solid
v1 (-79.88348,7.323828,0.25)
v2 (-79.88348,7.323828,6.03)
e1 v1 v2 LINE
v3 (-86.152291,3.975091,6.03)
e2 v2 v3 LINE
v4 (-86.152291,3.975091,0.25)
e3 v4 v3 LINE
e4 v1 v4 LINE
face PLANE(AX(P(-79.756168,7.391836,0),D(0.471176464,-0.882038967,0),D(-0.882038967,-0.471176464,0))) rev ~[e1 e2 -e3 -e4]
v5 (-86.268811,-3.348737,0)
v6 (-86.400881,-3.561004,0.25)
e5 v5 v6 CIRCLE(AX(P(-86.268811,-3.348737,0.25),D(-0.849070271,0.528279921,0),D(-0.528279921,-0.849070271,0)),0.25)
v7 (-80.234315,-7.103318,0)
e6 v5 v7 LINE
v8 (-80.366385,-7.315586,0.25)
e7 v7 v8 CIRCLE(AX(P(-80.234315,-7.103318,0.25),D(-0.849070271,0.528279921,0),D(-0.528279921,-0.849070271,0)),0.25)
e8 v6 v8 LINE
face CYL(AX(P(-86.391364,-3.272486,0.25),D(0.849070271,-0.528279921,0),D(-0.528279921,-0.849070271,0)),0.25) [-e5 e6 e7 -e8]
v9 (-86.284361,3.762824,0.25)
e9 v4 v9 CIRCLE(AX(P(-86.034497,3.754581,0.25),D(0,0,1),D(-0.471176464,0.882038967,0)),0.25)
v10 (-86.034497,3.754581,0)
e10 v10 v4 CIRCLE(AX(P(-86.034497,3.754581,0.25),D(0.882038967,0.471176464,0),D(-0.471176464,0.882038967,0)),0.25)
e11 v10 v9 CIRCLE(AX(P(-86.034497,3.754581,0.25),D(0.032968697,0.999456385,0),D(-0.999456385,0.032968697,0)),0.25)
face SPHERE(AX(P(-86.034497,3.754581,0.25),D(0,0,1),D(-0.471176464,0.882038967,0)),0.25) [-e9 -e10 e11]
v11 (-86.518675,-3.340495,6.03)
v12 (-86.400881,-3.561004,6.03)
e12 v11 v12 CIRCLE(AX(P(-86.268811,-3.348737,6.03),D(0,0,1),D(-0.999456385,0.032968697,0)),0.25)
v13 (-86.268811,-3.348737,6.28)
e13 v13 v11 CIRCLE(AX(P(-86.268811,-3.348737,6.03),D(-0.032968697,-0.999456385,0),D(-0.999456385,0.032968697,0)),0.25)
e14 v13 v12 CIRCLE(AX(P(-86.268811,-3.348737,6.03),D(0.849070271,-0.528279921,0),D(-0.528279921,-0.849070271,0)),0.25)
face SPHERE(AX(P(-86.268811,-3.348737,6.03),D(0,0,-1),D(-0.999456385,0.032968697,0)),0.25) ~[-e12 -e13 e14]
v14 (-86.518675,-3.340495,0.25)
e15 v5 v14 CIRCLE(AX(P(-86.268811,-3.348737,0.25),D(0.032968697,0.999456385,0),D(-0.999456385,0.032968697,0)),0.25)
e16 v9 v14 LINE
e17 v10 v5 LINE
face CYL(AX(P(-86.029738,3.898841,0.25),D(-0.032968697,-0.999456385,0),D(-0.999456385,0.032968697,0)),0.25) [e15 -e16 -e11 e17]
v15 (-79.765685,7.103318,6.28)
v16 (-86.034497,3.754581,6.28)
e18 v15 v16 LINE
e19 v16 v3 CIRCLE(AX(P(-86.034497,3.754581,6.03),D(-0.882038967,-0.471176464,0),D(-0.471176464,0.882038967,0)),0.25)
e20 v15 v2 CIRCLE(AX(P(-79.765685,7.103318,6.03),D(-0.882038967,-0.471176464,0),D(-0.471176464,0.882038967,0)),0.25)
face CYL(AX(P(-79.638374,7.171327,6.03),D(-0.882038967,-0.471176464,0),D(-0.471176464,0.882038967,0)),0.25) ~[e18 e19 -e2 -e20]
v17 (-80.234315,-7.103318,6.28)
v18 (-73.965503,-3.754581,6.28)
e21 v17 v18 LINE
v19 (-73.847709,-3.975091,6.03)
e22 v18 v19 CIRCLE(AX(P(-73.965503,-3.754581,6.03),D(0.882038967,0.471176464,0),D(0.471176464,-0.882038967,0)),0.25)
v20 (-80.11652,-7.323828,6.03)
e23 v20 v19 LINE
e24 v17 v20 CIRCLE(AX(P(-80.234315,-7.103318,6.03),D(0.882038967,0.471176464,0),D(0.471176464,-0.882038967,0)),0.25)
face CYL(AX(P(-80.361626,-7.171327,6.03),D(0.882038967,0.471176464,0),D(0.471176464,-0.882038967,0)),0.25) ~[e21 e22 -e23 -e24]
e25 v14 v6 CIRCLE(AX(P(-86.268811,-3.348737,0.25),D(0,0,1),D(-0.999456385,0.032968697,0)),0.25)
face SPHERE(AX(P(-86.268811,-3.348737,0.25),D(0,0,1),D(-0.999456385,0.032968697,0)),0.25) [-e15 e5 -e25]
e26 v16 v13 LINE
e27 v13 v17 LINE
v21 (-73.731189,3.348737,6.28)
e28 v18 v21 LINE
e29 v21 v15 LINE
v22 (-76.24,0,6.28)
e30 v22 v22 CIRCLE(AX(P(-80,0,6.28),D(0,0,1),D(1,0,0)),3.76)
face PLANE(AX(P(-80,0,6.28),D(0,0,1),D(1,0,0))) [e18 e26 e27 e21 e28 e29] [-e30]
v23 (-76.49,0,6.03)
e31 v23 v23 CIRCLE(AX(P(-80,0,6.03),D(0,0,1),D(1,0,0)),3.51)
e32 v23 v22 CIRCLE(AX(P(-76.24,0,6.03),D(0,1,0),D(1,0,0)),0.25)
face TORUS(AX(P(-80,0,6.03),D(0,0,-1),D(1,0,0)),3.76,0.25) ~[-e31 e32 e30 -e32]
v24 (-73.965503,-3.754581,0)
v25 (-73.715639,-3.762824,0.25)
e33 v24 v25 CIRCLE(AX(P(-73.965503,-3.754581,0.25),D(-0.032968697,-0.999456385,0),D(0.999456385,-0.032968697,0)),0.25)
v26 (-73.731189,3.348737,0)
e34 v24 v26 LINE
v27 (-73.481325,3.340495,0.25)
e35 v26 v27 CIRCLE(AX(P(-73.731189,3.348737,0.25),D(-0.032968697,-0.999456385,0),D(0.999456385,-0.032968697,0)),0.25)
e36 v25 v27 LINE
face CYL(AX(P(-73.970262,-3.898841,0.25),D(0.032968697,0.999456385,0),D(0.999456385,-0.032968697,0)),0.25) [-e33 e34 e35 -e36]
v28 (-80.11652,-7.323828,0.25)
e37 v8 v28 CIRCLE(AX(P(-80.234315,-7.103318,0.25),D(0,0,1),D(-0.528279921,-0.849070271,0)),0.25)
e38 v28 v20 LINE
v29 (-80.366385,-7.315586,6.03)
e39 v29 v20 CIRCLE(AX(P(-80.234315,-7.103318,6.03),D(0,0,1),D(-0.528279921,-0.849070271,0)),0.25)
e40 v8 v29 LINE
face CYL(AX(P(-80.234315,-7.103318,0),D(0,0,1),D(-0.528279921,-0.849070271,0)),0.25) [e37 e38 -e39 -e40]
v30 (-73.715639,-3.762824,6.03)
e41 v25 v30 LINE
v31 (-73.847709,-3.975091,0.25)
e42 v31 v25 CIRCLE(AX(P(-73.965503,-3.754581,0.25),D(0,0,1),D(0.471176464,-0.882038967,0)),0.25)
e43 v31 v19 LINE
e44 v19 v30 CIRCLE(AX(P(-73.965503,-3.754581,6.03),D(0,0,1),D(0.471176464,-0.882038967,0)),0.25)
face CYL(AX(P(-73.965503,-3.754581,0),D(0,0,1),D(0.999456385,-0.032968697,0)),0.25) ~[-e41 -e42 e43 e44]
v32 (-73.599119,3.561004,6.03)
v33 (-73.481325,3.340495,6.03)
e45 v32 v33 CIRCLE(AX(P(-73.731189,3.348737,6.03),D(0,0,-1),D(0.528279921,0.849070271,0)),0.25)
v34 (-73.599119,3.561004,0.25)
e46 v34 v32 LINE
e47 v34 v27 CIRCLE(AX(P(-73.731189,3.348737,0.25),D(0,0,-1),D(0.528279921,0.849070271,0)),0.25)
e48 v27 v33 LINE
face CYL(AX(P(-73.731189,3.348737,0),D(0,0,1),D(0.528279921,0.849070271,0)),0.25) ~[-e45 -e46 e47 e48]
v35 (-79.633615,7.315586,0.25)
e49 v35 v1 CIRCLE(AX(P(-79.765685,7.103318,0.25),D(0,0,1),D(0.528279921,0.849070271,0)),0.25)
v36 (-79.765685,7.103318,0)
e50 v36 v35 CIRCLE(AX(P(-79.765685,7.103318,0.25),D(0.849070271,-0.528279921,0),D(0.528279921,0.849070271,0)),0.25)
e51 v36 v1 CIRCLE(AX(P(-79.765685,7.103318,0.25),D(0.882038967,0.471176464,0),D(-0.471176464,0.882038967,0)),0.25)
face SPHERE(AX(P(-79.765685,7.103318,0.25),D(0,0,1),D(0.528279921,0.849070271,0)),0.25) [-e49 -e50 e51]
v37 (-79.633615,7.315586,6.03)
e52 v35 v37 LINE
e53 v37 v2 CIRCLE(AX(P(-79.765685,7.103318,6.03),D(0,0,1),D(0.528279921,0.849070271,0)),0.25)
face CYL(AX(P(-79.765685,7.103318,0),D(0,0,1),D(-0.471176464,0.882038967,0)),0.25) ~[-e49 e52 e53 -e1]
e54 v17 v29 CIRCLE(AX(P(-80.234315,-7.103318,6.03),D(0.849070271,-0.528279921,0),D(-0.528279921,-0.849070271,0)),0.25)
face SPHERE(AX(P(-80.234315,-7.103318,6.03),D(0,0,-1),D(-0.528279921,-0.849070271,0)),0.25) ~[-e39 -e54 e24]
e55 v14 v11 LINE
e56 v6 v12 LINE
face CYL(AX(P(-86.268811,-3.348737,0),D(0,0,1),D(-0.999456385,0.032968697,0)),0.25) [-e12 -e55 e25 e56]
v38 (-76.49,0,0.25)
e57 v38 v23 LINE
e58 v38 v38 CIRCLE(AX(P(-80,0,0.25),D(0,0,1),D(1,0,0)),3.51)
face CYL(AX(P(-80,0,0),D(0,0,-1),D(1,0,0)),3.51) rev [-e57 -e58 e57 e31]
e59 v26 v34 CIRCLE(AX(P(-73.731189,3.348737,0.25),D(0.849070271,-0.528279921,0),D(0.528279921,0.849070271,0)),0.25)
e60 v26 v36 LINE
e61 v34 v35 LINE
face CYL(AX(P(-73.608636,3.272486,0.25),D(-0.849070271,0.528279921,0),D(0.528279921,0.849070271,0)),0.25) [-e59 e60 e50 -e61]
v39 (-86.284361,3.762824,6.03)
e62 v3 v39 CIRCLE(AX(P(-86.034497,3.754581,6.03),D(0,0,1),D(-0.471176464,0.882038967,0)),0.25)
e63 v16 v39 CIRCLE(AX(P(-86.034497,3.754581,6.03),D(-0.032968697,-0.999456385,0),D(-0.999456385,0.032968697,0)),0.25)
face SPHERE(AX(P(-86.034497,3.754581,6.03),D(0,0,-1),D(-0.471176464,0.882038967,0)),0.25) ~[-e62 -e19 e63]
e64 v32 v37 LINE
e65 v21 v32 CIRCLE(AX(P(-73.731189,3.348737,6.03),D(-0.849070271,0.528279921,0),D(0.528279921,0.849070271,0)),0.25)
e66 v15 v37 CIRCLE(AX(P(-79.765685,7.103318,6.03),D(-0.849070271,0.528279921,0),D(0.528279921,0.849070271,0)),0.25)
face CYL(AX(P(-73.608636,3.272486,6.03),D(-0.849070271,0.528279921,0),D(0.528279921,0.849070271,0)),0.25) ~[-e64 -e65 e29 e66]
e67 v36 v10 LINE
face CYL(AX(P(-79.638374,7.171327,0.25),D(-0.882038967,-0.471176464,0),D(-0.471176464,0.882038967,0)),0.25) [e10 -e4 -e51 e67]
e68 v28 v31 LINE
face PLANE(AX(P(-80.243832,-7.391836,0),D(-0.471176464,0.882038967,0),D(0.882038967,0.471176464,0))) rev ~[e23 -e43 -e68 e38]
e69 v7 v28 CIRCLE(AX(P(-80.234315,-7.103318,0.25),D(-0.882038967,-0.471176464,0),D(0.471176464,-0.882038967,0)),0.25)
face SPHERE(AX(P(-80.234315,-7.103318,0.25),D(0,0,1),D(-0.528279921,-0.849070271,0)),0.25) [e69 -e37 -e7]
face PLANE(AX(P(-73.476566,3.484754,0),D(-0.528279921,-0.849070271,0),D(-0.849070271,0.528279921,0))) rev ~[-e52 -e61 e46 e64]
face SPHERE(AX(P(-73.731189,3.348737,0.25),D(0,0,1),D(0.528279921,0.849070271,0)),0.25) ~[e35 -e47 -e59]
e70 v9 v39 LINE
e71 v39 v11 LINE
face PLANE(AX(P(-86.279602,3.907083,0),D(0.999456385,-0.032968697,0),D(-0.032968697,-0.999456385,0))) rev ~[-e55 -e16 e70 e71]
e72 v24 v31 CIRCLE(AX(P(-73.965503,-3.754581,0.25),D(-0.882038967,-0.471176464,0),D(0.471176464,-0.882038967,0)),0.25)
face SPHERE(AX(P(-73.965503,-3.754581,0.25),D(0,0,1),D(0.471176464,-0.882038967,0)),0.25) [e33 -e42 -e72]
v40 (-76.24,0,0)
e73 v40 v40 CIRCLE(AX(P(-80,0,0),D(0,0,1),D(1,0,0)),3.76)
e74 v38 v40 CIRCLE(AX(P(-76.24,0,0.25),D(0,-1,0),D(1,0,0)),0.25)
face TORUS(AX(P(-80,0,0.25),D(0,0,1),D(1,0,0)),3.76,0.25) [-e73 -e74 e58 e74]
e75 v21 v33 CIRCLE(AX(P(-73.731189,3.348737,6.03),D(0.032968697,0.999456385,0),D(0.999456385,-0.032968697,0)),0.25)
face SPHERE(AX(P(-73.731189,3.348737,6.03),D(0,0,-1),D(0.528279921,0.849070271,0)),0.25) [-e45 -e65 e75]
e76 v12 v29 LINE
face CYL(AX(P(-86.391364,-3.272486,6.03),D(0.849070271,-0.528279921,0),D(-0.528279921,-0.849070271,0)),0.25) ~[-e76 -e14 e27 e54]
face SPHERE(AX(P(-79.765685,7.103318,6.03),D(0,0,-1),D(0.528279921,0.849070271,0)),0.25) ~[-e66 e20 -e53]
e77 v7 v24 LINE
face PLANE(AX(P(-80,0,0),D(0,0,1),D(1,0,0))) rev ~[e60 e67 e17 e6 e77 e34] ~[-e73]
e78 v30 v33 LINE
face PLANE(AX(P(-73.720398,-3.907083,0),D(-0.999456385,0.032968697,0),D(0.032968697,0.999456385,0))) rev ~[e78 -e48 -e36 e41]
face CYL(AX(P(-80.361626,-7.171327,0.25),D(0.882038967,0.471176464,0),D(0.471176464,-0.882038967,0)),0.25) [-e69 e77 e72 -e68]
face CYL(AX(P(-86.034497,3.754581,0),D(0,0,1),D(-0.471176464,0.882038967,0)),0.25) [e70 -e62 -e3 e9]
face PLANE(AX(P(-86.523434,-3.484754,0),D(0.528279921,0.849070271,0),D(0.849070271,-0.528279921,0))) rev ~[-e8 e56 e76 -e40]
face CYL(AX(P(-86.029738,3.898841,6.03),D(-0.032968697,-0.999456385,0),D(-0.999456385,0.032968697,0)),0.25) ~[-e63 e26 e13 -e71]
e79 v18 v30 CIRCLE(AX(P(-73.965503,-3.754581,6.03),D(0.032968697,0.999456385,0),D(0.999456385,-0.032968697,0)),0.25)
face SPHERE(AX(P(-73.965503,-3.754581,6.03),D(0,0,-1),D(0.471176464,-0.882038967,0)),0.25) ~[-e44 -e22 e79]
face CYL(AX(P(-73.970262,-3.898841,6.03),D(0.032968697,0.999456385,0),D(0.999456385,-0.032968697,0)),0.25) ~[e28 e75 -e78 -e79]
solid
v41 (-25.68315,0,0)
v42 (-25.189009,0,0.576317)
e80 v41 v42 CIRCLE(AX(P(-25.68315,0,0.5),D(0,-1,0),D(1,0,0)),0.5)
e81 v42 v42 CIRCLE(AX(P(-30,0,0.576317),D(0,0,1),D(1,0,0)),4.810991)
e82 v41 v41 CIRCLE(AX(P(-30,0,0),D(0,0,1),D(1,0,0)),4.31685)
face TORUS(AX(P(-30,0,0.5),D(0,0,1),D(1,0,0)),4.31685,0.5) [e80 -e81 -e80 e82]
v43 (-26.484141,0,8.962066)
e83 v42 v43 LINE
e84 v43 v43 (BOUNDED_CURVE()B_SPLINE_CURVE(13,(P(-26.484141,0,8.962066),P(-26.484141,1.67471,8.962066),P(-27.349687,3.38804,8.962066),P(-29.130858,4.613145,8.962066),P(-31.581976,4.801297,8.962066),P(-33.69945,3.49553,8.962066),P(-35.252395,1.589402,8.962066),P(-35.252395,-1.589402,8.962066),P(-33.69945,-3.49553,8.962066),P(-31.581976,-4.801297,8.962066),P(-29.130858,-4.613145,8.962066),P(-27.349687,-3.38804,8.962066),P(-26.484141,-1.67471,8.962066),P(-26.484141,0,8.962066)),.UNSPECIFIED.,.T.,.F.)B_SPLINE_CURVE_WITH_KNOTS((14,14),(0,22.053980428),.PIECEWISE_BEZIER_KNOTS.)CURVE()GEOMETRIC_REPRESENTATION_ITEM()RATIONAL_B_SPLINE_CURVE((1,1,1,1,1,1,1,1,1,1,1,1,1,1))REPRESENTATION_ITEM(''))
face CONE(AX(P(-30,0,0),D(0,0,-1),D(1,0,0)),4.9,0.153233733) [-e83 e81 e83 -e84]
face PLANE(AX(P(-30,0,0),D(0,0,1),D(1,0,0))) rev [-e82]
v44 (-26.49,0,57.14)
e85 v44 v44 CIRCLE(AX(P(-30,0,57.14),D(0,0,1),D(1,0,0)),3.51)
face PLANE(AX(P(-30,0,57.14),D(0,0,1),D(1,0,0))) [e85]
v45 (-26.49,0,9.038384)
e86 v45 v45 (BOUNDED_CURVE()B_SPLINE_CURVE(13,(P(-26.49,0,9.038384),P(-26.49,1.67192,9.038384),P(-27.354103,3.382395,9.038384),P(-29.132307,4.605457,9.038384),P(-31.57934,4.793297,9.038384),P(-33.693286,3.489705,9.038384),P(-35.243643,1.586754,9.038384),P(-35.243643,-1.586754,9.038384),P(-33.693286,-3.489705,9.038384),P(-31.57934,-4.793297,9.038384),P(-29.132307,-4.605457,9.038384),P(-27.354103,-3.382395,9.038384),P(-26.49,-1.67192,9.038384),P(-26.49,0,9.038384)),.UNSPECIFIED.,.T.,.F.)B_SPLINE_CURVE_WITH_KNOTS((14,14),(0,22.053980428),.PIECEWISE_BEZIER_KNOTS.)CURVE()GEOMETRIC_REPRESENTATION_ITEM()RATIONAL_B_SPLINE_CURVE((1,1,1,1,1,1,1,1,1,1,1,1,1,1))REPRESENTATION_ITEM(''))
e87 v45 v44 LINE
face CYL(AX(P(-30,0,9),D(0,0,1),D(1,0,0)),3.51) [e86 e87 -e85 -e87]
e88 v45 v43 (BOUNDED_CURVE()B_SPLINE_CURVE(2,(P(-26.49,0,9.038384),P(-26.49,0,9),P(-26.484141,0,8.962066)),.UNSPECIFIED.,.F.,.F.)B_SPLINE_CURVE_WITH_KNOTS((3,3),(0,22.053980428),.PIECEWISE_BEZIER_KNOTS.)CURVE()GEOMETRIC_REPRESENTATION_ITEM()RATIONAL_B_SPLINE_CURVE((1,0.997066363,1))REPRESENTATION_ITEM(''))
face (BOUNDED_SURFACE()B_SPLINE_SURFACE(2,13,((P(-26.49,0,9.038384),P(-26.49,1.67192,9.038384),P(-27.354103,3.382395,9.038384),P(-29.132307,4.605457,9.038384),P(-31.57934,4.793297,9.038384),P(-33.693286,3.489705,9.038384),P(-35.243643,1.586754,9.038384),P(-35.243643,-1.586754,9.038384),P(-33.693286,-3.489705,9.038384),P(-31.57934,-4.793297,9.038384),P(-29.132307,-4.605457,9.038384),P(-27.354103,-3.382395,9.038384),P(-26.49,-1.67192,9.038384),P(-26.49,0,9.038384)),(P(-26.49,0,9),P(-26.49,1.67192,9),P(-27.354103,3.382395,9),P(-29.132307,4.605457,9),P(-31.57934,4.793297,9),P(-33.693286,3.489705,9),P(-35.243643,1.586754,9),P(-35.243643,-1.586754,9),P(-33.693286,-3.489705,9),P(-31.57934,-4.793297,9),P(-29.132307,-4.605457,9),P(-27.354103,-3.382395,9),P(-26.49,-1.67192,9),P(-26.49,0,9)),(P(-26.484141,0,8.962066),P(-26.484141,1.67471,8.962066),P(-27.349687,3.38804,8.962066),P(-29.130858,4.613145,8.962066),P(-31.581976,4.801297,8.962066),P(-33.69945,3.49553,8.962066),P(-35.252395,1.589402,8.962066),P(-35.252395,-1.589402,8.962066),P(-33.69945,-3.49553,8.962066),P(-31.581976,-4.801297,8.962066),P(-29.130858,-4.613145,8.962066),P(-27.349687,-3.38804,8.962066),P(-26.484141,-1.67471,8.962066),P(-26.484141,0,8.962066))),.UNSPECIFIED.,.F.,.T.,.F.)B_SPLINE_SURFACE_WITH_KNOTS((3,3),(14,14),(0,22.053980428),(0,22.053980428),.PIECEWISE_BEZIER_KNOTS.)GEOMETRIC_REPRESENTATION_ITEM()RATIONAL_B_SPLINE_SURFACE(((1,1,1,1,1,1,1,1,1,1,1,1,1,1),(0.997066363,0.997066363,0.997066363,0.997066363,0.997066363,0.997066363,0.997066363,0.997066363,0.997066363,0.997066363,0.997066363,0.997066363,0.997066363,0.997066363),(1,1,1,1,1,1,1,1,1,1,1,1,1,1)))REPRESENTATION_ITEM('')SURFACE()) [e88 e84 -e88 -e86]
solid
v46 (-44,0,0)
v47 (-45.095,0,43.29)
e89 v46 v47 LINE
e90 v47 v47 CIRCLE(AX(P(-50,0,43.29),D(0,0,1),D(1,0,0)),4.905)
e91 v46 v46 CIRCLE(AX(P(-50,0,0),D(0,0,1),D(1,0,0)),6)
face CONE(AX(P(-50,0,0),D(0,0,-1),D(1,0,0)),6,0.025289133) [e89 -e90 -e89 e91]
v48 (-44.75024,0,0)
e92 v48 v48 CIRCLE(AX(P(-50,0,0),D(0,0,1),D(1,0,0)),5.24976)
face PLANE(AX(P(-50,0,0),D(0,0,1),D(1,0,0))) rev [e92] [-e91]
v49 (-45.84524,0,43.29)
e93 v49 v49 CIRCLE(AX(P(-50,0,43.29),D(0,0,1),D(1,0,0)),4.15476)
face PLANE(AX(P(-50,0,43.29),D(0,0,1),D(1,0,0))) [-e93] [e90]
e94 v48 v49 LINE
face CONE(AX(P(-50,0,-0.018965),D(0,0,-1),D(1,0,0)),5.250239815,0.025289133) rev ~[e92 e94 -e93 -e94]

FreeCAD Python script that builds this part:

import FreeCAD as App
import Part
import Sketcher
from FreeCAD import Vector


def edges_at(feature, points):
    """Names of the edges that pass closest to the given points."""
    edges = feature.Shape.Edges
    near = lambda p: min(range(len(edges)), key=lambda i: edges[i].distToShape(Part.Vertex(*p))[0])
    return sorted({f"Edge{near(p) + 1}" for p in points})


def faces_at(feature, points):
    """Names of the faces that lie closest to the given points."""
    faces = feature.Shape.Faces
    near = lambda p: min(range(len(faces)), key=lambda i: faces[i].distToShape(Part.Vertex(*p))[0])
    return sorted({f"Face{near(p) + 1}" for p in points})

doc = App.newDocument("Part")
params = doc.addObject("Spreadsheet::Sheet", "Params")
for row, (alias, value) in enumerate([
    ("sketch1_width", "4.9 mm"),
    ("sketch1_width2", "3.51 mm"),
    ("sketch1_height", "48.14 mm"),
    ("revolution_angle", "360 deg"),
    ("fillet_radius", "0.5 mm"),
    ("sketch2_width", "6 mm"),
    ("sketch2_height", "43.29 mm"),
    ("revolution2_angle", "360 deg"),
    ("thickness_wall", "0.75 mm"),
    ("sketch3_diameter", "7.02 mm"),
    ("pad1_length", "6.28 mm"),
    ("fillet2_radius", "0.25 mm"),
], start=1):
    params.set(f"A{row}", alias)
    params.set(f"B{row}", "=" + value)
    params.setAlias(f"B{row}", alias)

body = doc.addObject("PartDesign::Body", "Body")

# Sketch on XZ plane
sketch1 = body.newObject("Sketcher::SketchObject", "Sketch")
sketch1.AttachmentSupport = (doc.getObject("XZ_Plane"), [""])
sketch1.MapMode = "FlatFace"
sketch1.addGeometry([
    Part.LineSegment(Vector(-26.49, 9, 0), Vector(-26.49, 57.14, 0)),  # 0
    Part.LineSegment(Vector(-26.49, 57.14, 0), Vector(-30, 57.14, 0)),  # 1
    Part.LineSegment(Vector(-30, 57.14, 0), Vector(-30, 0, 0)),  # 2
    Part.LineSegment(Vector(-30, 0, 0), Vector(-25.1, 0, 0)),  # 3
    Part.LineSegment(Vector(-25.1, 0, 0), Vector(-26.49, 9, 0)),  # 4
], False)
sketch1.addGeometry(Part.LineSegment(Vector(-30, 0, 0), Vector(-30, 57.14, 0)), True)  # axis
sketch1.addConstraint([
    Sketcher.Constraint("Coincident", 0, 2, 1, 1),
    Sketcher.Constraint("Coincident", 1, 2, 2, 1),
    Sketcher.Constraint("Coincident", 2, 2, 3, 1),
    Sketcher.Constraint("Coincident", 3, 2, 4, 1),
    Sketcher.Constraint("Coincident", 4, 2, 0, 1),
    Sketcher.Constraint("Vertical", 0),
    Sketcher.Constraint("Horizontal", 1),
    Sketcher.Constraint("Vertical", 2),
    Sketcher.Constraint("Horizontal", 3),
    Sketcher.Constraint("Vertical", 5),
    Sketcher.Constraint("Coincident", 5, 1, 2, 2),
    Sketcher.Constraint("PointOnObject", 2, 2, -1),
    Sketcher.Constraint("Horizontal", 0, 2, 5, 2),
    Sketcher.Constraint("DistanceX", 3, 1, 3, 2, 4.9),
    Sketcher.Constraint("DistanceX", 1, 2, -1, 1, 30.0),
    Sketcher.Constraint("DistanceY", -1, 1, 4, 2, 9.0),
    Sketcher.Constraint("DistanceX", 1, 2, 1, 1, 3.51),
    Sketcher.Constraint("DistanceY", 0, 1, 0, 2, 48.14),
])
sketch1.setExpression("Constraints[13]", "Params.sketch1_width")
sketch1.setExpression("Constraints[16]", "Params.sketch1_width2")
sketch1.setExpression("Constraints[17]", "Params.sketch1_height")
revolution = body.newObject("PartDesign::Revolution", "Revolution")
revolution.Profile = sketch1
revolution.ReferenceAxis = (sketch1, ["Axis0"])
revolution.setExpression("Angle", "Params.revolution_angle")
doc.recompute()

fillet = body.newObject("PartDesign::Fillet", "Fillet")
fillet.Base = (revolution, edges_at(revolution, [(-34.9, 0, 0), (-33.51, 0, 9)]))
fillet.setExpression("Radius", "Params.fillet_radius")
body2 = doc.addObject("PartDesign::Body", "Body001")

# Sketch on XZ plane
sketch2 = body2.newObject("Sketcher::SketchObject", "Sketch001")
sketch2.AttachmentSupport = (doc.getObject("XZ_Plane001"), [""])
sketch2.MapMode = "FlatFace"
sketch2.addGeometry([
    Part.LineSegment(Vector(-50, 43.29, 0), Vector(-50, 0, 0)),
    Part.LineSegment(Vector(-50, 0, 0), Vector(-44, 0, 0)),
    Part.LineSegment(Vector(-44, 0, 0), Vector(-45.095, 43.29, 0)),
    Part.LineSegment(Vector(-45.095, 43.29, 0), Vector(-50, 43.29, 0)),
], False)
sketch2.addGeometry(Part.LineSegment(Vector(-50, 0, 0), Vector(-50, 43.29, 0)), True)  # axis
sketch2.addConstraint([
    Sketcher.Constraint("Coincident", 0, 2, 1, 1),
    Sketcher.Constraint("Coincident", 1, 2, 2, 1),
    Sketcher.Constraint("Coincident", 2, 2, 3, 1),
    Sketcher.Constraint("Coincident", 3, 2, 0, 1),
    Sketcher.Constraint("Vertical", 0),
    Sketcher.Constraint("Horizontal", 1),
    Sketcher.Constraint("Horizontal", 3),
    Sketcher.Constraint("Vertical", 4),
    Sketcher.Constraint("Coincident", 4, 1, 0, 2),
    Sketcher.Constraint("PointOnObject", 0, 2, -1),
    Sketcher.Constraint("Horizontal", 2, 2, 4, 2),
    Sketcher.Constraint("DistanceX", 1, 1, 1, 2, 6.0),
    Sketcher.Constraint("DistanceX", 0, 2, -1, 1, 50.0),
    Sketcher.Constraint("DistanceY", 0, 2, 0, 1, 43.29),
    Sketcher.Constraint("DistanceX", 3, 2, 3, 1, 4.905),
])
sketch2.setExpression("Constraints[11]", "Params.sketch2_width")
sketch2.setExpression("Constraints[13]", "Params.sketch2_height")
revolution2 = body2.newObject("PartDesign::Revolution", "Revolution001")
revolution2.Profile = sketch2
revolution2.ReferenceAxis = (sketch2, ["Axis0"])
revolution2.setExpression("Angle", "Params.revolution2_angle")
doc.recompute()

thickness = body2.newObject("PartDesign::Thickness", "Thickness")
thickness.Base = (revolution2, faces_at(revolution2, [(-50, 0, 43.29), (-50, 0, 0)]))
thickness.setExpression("Value", "Params.thickness_wall")
thickness.Reversed = True
thickness.Join = "Arc"
body3 = doc.addObject("PartDesign::Body", "Body002")

# Sketch on XY plane
sketch3 = body3.newObject("Sketcher::SketchObject", "Sketch002")
sketch3.AttachmentSupport = (doc.getObject("XY_Plane002"), [""])
sketch3.MapMode = "FlatFace"
sketch3.addGeometry([
    Part.LineSegment(Vector(-79.756168, 7.391836, 0), Vector(-86.279602, 3.907083, 0)),  # 0
    Part.LineSegment(Vector(-86.279602, 3.907083, 0), Vector(-86.523434, -3.484754, 0)),  # 1
    Part.LineSegment(Vector(-86.523434, -3.484754, 0), Vector(-80.243832, -7.391836, 0)),  # 2
    Part.LineSegment(Vector(-80.243832, -7.391836, 0), Vector(-73.720398, -3.907083, 0)),  # 3
    Part.LineSegment(Vector(-73.720398, -3.907083, 0), Vector(-73.476566, 3.484754, 0)),  # 4
    Part.LineSegment(Vector(-73.476566, 3.484754, 0), Vector(-79.756168, 7.391836, 0)),  # 5
    Part.Circle(Vector(-80, 0, 0), Vector(0, 0, 1), 3.51),  # 6
], False)
sketch3.addConstraint([
    Sketcher.Constraint("Coincident", 0, 2, 1, 1),
    Sketcher.Constraint("Coincident", 1, 2, 2, 1),
    Sketcher.Constraint("Coincident", 2, 2, 3, 1),
    Sketcher.Constraint("Coincident", 3, 2, 4, 1),
    Sketcher.Constraint("Coincident", 4, 2, 5, 1),
    Sketcher.Constraint("Coincident", 5, 2, 0, 1),
    Sketcher.Constraint("PointOnObject", 6, 3, -1),
    Sketcher.Constraint("Parallel", 0, 3),
    Sketcher.Constraint("Parallel", 1, 4),
    Sketcher.Constraint("Parallel", 2, 5),
    Sketcher.Constraint("Equal", 0, 1),
    Sketcher.Constraint("Equal", 1, 2),
    Sketcher.Constraint("Equal", 2, 3),
    Sketcher.Constraint("Diameter", 6, 7.02),
    Sketcher.Constraint("DistanceX", 6, 3, -1, 1, 80.0),
    Sketcher.Constraint("DistanceX", 2, 2, -1, 1, 80.243832),
    Sketcher.Constraint("DistanceX", 5, 2, -1, 1, 79.756168),
    Sketcher.Constraint("DistanceX", 1, 2, 0, 2, 0.243832),
    Sketcher.Constraint("DistanceX", 0, 2, 2, 2, 6.03577),
    Sketcher.Constraint("DistanceY", 2, 2, 0, 2, 11.298919),
    Sketcher.Constraint("DistanceY", -1, 1, 0, 2, 3.907083),
])
sketch3.setExpression("Constraints[13]", "Params.sketch3_diameter")
pad1 = body3.newObject("PartDesign::Pad", "Pad")
pad1.Profile = sketch3
pad1.setExpression("Length", "Params.pad1_length")
doc.recompute()

fillet2 = body3.newObject("PartDesign::Fillet", "Fillet001")
fillet2.Base = (pad1, ["Edge1"])
fillet2.UseAllEdges = True
fillet2.setExpression("Radius", "Params.fillet2_radius")

doc.recompute()
